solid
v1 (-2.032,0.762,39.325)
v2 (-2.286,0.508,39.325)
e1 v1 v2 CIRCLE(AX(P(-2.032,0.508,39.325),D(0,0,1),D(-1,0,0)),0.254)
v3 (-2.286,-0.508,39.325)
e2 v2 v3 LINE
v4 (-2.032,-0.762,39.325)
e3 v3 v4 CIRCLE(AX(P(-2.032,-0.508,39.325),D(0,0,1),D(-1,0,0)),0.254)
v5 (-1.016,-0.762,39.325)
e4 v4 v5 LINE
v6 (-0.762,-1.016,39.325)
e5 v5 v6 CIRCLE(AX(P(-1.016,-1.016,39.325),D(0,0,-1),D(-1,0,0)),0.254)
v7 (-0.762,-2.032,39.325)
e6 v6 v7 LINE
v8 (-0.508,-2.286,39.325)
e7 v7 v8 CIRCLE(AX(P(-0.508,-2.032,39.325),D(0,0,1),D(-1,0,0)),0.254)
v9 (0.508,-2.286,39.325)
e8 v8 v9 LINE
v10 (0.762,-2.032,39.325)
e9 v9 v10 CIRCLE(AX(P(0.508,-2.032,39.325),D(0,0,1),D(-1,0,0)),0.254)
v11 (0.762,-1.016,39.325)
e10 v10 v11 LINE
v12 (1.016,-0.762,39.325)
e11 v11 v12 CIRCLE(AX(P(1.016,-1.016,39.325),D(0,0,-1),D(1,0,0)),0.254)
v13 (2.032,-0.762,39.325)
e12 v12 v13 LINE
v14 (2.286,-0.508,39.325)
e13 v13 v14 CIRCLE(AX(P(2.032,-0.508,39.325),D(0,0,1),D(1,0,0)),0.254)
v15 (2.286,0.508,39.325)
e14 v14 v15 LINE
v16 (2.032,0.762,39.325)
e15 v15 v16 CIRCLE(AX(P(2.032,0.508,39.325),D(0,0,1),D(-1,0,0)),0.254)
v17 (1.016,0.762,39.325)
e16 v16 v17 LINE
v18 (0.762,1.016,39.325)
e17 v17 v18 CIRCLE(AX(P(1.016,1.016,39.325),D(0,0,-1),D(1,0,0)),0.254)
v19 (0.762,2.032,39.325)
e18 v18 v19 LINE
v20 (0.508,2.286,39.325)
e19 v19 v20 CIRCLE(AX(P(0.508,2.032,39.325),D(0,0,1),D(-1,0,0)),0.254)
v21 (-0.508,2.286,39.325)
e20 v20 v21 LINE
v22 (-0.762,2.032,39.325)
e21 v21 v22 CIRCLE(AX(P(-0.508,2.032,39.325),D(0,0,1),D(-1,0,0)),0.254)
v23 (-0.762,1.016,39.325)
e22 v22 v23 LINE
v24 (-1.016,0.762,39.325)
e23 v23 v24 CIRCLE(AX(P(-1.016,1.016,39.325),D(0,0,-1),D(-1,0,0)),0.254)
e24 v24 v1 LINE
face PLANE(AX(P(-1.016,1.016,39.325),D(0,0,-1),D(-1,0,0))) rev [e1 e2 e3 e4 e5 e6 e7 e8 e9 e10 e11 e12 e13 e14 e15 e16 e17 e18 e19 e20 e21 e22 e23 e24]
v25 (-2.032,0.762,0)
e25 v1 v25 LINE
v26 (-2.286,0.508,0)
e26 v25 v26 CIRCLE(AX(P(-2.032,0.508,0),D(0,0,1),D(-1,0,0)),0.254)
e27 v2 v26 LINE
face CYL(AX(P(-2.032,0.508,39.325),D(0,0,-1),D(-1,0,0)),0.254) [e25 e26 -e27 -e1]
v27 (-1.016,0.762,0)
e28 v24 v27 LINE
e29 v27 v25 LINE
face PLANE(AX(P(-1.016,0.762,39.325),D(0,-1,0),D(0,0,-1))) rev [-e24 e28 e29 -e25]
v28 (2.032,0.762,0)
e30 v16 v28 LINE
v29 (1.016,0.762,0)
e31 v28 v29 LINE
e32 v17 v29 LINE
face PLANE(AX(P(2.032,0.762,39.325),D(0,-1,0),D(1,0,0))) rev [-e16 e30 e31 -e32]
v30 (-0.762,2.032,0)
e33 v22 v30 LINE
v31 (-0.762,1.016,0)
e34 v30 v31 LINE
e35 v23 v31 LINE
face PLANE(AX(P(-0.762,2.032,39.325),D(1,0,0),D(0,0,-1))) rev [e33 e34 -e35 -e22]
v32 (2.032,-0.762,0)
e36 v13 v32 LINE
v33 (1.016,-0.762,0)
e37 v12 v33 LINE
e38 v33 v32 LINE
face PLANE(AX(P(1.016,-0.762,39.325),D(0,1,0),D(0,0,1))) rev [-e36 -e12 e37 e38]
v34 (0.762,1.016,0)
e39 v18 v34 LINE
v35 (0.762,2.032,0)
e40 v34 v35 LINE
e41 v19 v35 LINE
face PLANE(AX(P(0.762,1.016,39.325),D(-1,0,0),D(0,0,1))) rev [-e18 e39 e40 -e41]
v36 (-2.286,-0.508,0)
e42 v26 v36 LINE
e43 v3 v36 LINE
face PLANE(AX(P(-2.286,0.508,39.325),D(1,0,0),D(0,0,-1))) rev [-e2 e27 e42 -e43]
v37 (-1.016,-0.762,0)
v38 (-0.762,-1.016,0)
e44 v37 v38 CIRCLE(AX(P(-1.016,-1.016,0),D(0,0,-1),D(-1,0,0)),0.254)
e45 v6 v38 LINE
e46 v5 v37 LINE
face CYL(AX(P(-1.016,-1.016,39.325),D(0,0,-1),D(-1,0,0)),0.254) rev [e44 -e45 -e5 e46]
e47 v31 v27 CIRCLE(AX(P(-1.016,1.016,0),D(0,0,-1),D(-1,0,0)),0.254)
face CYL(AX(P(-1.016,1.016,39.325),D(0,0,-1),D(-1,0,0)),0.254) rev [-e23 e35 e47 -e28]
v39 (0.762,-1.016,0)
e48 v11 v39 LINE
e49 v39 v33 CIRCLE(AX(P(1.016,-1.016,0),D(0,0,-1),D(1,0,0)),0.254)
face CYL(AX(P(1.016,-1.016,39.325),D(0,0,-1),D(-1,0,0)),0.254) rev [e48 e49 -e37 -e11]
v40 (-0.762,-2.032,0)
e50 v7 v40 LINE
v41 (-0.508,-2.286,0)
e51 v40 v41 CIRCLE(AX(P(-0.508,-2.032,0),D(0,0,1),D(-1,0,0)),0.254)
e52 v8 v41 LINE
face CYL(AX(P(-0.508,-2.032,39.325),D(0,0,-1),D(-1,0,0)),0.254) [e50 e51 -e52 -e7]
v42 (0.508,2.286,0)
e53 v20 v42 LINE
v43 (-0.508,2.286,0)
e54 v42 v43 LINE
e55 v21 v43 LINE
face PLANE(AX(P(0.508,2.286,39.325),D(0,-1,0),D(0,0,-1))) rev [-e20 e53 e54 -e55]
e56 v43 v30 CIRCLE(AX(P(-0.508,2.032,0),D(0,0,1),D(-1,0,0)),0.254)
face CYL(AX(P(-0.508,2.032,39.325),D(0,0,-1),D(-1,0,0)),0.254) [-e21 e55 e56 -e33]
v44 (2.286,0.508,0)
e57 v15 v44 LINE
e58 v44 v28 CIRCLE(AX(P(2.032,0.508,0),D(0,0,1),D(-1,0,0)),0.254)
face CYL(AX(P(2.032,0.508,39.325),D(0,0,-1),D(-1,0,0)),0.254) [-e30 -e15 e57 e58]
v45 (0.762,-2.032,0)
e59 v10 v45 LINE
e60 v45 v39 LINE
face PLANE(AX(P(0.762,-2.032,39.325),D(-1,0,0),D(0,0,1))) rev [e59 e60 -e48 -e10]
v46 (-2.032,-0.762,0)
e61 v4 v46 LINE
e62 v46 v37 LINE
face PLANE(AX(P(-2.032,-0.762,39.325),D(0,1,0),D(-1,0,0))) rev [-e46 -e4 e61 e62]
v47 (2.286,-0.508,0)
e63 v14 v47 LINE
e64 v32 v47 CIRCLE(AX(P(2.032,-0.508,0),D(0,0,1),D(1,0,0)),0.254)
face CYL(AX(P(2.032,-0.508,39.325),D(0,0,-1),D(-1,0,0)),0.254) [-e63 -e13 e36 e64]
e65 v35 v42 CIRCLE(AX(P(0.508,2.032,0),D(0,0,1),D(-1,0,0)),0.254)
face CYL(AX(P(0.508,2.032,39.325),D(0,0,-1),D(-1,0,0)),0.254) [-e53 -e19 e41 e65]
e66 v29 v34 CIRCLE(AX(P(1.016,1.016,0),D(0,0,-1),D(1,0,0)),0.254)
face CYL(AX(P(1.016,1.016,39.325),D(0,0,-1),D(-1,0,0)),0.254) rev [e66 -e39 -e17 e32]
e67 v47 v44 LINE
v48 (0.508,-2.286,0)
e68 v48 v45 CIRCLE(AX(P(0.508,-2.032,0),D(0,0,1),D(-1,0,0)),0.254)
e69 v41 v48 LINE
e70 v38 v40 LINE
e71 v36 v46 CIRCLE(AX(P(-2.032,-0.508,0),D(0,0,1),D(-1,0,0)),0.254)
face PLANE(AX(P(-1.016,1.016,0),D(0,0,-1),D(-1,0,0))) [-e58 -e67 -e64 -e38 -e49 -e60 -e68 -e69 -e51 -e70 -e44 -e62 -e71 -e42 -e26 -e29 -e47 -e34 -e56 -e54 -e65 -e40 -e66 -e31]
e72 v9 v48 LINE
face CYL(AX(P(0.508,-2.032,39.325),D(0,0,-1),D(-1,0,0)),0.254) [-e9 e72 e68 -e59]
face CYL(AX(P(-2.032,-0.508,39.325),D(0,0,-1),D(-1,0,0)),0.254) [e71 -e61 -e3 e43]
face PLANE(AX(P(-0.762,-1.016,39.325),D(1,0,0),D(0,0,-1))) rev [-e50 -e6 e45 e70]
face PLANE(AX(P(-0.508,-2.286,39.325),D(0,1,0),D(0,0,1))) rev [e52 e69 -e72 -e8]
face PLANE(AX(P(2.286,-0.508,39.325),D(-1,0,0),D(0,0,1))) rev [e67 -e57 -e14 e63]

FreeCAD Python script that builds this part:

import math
import FreeCAD as App
import Part
import Sketcher
Q = App.Units.Quantity

doc = App.newDocument("Part")
params = doc.addObject("Spreadsheet::Sheet", "Params")
for row, (alias, value) in enumerate([
    ("sketch1_radius", "0.01 in"),
    ("sketch1_width", "0.04 in"),
    ("pad1_length", "39.325 mm"),
], start=1):
    params.set(f"A{row}", alias)
    params.set(f"B{row}", "=" + value)
    params.setAlias(f"B{row}", alias)

body = doc.addObject("PartDesign::Body", "Body")

sketch1 = doc.addObject("Sketcher::SketchObject", "Sketch")
body.addObject(sketch1)
sketch1.AttachmentSupport = (doc.XY_Plane, [""])
sketch1.MapMode = "FlatFace"
sketch1.addGeometry([
    Part.LineSegment(App.Vector(-0.762, 2.032, 0), App.Vector(-0.762, 1.016, 0)),
    Part.ArcOfCircle(Part.Circle(App.Vector(-1.016, 1.016, 0), App.Vector(0, 0, 1), 0.254), math.radians(-90), math.radians(0)),
    Part.LineSegment(App.Vector(-1.016, 0.762, 0), App.Vector(-2.032, 0.762, 0)),
    Part.ArcOfCircle(Part.Circle(App.Vector(-2.032, 0.508, 0), App.Vector(0, 0, 1), 0.254), math.radians(90), math.radians(180)),
    Part.LineSegment(App.Vector(-2.286, 0.508, 0), App.Vector(-2.286, -0.508, 0)),
    Part.ArcOfCircle(Part.Circle(App.Vector(-2.032, -0.508, 0), App.Vector(0, 0, 1), 0.254), math.radians(-180), math.radians(-90)),
    Part.LineSegment(App.Vector(-2.032, -0.762, 0), App.Vector(-1.016, -0.762, 0)),
    Part.ArcOfCircle(Part.Circle(App.Vector(-1.016, -1.016, 0), App.Vector(0, 0, 1), 0.254), math.radians(0), math.radians(90)),
    Part.LineSegment(App.Vector(-0.762, -1.016, 0), App.Vector(-0.762, -2.032, 0)),
    Part.ArcOfCircle(Part.Circle(App.Vector(-0.508, -2.032, 0), App.Vector(0, 0, 1), 0.254), math.radians(-180), math.radians(-90)),
    Part.LineSegment(App.Vector(-0.508, -2.286, 0), App.Vector(0.508, -2.286, 0)),
    Part.ArcOfCircle(Part.Circle(App.Vector(0.508, -2.032, 0), App.Vector(0, 0, 1), 0.254), math.radians(-90), math.radians(0)),
    Part.LineSegment(App.Vector(0.762, -2.032, 0), App.Vector(0.762, -1.016, 0)),
    Part.ArcOfCircle(Part.Circle(App.Vector(1.016, -1.016, 0), App.Vector(0, 0, 1), 0.254), math.radians(90), math.radians(180)),
    Part.LineSegment(App.Vector(1.016, -0.762, 0), App.Vector(2.032, -0.762, 0)),
    Part.ArcOfCircle(Part.Circle(App.Vector(2.032, -0.508, 0), App.Vector(0, 0, 1), 0.254), math.radians(-90), math.radians(0)),
    Part.LineSegment(App.Vector(2.286, -0.508, 0), App.Vector(2.286, 0.508, 0)),
    Part.ArcOfCircle(Part.Circle(App.Vector(2.032, 0.508, 0), App.Vector(0, 0, 1), 0.254), math.radians(0), math.radians(90)),
    Part.LineSegment(App.Vector(2.032, 0.762, 0), App.Vector(1.016, 0.762, 0)),
    Part.ArcOfCircle(Part.Circle(App.Vector(1.016, 1.016, 0), App.Vector(0, 0, 1), 0.254), math.radians(-180), math.radians(-90)),
    Part.LineSegment(App.Vector(0.762, 1.016, 0), App.Vector(0.762, 2.032, 0)),
    Part.ArcOfCircle(Part.Circle(App.Vector(0.508, 2.032, 0), App.Vector(0, 0, 1), 0.254), math.radians(0), math.radians(90)),
    Part.LineSegment(App.Vector(0.508, 2.286, 0), App.Vector(-0.508, 2.286, 0)),
    Part.ArcOfCircle(Part.Circle(App.Vector(-0.508, 2.032, 0), App.Vector(0, 0, 1), 0.254), math.radians(90), math.radians(180)),
], False)
sketch1.addConstraint([
    Sketcher.Constraint("Tangent", 0, 2, 1, 2),
    Sketcher.Constraint("Tangent", 1, 1, 2, 1),
    Sketcher.Constraint("Tangent", 2, 2, 3, 1),
    Sketcher.Constraint("Tangent", 3, 2, 4, 1),
    Sketcher.Constraint("Tangent", 4, 2, 5, 1),
    Sketcher.Constraint("Tangent", 5, 2, 6, 1),
    Sketcher.Constraint("Tangent", 6, 2, 7, 2),
    Sketcher.Constraint("Tangent", 7, 1, 8, 1),
    Sketcher.Constraint("Tangent", 8, 2, 9, 1),
    Sketcher.Constraint("Tangent", 9, 2, 10, 1),
    Sketcher.Constraint("Tangent", 10, 2, 11, 1),
    Sketcher.Constraint("Tangent", 11, 2, 12, 1),
    Sketcher.Constraint("Tangent", 12, 2, 13, 2),
    Sketcher.Constraint("Tangent", 13, 1, 14, 1),
    Sketcher.Constraint("Tangent", 14, 2, 15, 1),
    Sketcher.Constraint("Tangent", 15, 2, 16, 1),
    Sketcher.Constraint("Tangent", 16, 2, 17, 1),
    Sketcher.Constraint("Tangent", 17, 2, 18, 1),
    Sketcher.Constraint("Tangent", 18, 2, 19, 2),
    Sketcher.Constraint("Tangent", 19, 1, 20, 1),
    Sketcher.Constraint("Tangent", 20, 2, 21, 1),
    Sketcher.Constraint("Tangent", 21, 2, 22, 1),
    Sketcher.Constraint("Tangent", 22, 2, 23, 1),
    Sketcher.Constraint("Tangent", 23, 2, 0, 1),
    Sketcher.Constraint("Vertical", 0),
    Sketcher.Constraint("Horizontal", 2),
    Sketcher.Constraint("Vertical", 4),
    Sketcher.Constraint("Horizontal", 6),
    Sketcher.Constraint("Vertical", 8),
    Sketcher.Constraint("Horizontal", 10),
    Sketcher.Constraint("Vertical", 12),
    Sketcher.Constraint("Horizontal", 14),
    Sketcher.Constraint("Vertical", 16),
    Sketcher.Constraint("Horizontal", 18),
    Sketcher.Constraint("Vertical", 20),
    Sketcher.Constraint("Horizontal", 22),
    Sketcher.Constraint("Equal", 1, 3),
    Sketcher.Constraint("Equal", 3, 5),
    Sketcher.Constraint("Equal", 5, 7),
    Sketcher.Constraint("Equal", 7, 9),
    Sketcher.Constraint("Equal", 9, 11),
    Sketcher.Constraint("Equal", 11, 13),
    Sketcher.Constraint("Equal", 13, 15),
    Sketcher.Constraint("Equal", 15, 17),
    Sketcher.Constraint("Equal", 17, 19),
    Sketcher.Constraint("Equal", 19, 21),
    Sketcher.Constraint("Equal", 21, 23),
    Sketcher.Constraint("Symmetric", 1, 3, 13, 3, -1, 1),
    Sketcher.Constraint("Symmetric", 5, 3, 17, 3, -1, 1),
    Sketcher.Constraint("Symmetric", 9, 3, 21, 3, -1, 1),
    Sketcher.Constraint("Symmetric", 7, 3, 13, 3, -2),
    Sketcher.Constraint("Equal", 6, 10),
    Sketcher.Constraint("Equal", 22, 0),
    Sketcher.Constraint("Equal", 0, 4),
    Sketcher.Constraint("Radius", 1, Q("0.01 in")),
    Sketcher.Constraint("DistanceX", 2, 2, 2, 1, Q("0.04 in")),
])
sketch1.setExpression("Constraints[54]", "Params.sketch1_radius")
sketch1.setExpression("Constraints[55]", "Params.sketch1_width")
pad1 = doc.addObject("PartDesign::Pad", "Pad")
body.addObject(pad1)
pad1.Profile = sketch1
pad1.setExpression("Length", "Params.pad1_length")

doc.recompute()
